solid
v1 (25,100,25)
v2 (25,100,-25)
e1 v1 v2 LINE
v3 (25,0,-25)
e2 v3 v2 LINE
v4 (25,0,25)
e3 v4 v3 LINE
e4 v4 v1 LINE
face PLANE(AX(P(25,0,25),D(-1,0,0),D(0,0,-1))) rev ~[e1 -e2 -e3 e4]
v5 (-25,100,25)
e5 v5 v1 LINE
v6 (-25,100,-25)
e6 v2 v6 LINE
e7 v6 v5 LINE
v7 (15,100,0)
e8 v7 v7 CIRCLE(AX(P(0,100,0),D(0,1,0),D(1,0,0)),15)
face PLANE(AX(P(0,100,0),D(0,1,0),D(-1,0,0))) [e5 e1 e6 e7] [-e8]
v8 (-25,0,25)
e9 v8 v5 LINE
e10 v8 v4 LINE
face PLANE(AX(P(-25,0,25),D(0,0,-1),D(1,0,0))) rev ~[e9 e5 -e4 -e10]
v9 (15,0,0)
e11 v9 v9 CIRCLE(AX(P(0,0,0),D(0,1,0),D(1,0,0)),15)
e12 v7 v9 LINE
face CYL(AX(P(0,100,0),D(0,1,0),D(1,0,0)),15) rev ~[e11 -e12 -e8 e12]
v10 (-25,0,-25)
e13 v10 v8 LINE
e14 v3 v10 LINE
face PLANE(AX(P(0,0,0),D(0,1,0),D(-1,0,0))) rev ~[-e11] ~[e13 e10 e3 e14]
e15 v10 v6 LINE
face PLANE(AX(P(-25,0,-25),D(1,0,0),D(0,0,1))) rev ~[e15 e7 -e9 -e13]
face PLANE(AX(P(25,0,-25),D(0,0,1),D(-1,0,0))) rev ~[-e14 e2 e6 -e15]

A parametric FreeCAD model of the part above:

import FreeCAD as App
import Part
import Sketcher


def add_polygon(sketch, points):
    """Adds a closed chain of lines whose ends are joined by coincident constraints."""
    first, n = sketch.GeometryCount, len(points)
    for a, b in zip(points, points[1:] + points[:1]):
        sketch.addGeometry(Part.LineSegment(App.Vector(*a, 0), App.Vector(*b, 0)), False)
    for i in range(n):
        sketch.addConstraint(Sketcher.Constraint("Coincident", first + i, 2, first + (i + 1) % n, 1))

doc = App.newDocument("Part")
body = doc.addObject("PartDesign::Body", "Body")

# Sketch on XZ plane
sketch1 = body.newObject("Sketcher::SketchObject", "Sketch")
sketch1.AttachmentSupport = (doc.getObject("XZ_Plane"), [""])
sketch1.MapMode = "FlatFace"
add_polygon(sketch1, [(-25, -25), (-25, 25), (25, 25), (25, -25)])  # lines 0-3
sketch1.addConstraint([
    Sketcher.Constraint("Vertical", 0),
    Sketcher.Constraint("Horizontal", 1),
    Sketcher.Constraint("Vertical", 2),
    Sketcher.Constraint("Horizontal", 3),
    Sketcher.Constraint("Symmetric", 0, 2, 2, 2, -1, 1),
    Sketcher.Constraint("Equal", 3, 0),
    Sketcher.Constraint("DistanceX", 1, 1, 1, 2, 50.0),
])
pad1 = body.newObject("PartDesign::Pad", "Pad")
pad1.Profile = sketch1
pad1.Length = 100
pad1.Reversed = True

# Sketch on XZ plane
sketch2 = body.newObject("Sketcher::SketchObject", "Sketch001")
sketch2.AttachmentSupport = (doc.getObject("XZ_Plane"), [""])
sketch2.MapMode = "FlatFace"
sketch2.AttachmentOffset = App.Placement(App.Vector(0, 0, -100), App.Rotation())
sketch2.addGeometry(Part.Circle(App.Vector(0, 0, 0), App.Vector(0, 0, 1), 15), False)
sketch2.addConstraint([
    Sketcher.Constraint("Coincident", 0, 3, -1, 1),
    Sketcher.Constraint("Diameter", 0, 30.0),
])
pocket1 = body.newObject("PartDesign::Pocket", "Pocket")
pocket1.Profile = sketch2
pocket1.Type = "ThroughAll"
pocket1.Reversed = True

doc.recompute()
